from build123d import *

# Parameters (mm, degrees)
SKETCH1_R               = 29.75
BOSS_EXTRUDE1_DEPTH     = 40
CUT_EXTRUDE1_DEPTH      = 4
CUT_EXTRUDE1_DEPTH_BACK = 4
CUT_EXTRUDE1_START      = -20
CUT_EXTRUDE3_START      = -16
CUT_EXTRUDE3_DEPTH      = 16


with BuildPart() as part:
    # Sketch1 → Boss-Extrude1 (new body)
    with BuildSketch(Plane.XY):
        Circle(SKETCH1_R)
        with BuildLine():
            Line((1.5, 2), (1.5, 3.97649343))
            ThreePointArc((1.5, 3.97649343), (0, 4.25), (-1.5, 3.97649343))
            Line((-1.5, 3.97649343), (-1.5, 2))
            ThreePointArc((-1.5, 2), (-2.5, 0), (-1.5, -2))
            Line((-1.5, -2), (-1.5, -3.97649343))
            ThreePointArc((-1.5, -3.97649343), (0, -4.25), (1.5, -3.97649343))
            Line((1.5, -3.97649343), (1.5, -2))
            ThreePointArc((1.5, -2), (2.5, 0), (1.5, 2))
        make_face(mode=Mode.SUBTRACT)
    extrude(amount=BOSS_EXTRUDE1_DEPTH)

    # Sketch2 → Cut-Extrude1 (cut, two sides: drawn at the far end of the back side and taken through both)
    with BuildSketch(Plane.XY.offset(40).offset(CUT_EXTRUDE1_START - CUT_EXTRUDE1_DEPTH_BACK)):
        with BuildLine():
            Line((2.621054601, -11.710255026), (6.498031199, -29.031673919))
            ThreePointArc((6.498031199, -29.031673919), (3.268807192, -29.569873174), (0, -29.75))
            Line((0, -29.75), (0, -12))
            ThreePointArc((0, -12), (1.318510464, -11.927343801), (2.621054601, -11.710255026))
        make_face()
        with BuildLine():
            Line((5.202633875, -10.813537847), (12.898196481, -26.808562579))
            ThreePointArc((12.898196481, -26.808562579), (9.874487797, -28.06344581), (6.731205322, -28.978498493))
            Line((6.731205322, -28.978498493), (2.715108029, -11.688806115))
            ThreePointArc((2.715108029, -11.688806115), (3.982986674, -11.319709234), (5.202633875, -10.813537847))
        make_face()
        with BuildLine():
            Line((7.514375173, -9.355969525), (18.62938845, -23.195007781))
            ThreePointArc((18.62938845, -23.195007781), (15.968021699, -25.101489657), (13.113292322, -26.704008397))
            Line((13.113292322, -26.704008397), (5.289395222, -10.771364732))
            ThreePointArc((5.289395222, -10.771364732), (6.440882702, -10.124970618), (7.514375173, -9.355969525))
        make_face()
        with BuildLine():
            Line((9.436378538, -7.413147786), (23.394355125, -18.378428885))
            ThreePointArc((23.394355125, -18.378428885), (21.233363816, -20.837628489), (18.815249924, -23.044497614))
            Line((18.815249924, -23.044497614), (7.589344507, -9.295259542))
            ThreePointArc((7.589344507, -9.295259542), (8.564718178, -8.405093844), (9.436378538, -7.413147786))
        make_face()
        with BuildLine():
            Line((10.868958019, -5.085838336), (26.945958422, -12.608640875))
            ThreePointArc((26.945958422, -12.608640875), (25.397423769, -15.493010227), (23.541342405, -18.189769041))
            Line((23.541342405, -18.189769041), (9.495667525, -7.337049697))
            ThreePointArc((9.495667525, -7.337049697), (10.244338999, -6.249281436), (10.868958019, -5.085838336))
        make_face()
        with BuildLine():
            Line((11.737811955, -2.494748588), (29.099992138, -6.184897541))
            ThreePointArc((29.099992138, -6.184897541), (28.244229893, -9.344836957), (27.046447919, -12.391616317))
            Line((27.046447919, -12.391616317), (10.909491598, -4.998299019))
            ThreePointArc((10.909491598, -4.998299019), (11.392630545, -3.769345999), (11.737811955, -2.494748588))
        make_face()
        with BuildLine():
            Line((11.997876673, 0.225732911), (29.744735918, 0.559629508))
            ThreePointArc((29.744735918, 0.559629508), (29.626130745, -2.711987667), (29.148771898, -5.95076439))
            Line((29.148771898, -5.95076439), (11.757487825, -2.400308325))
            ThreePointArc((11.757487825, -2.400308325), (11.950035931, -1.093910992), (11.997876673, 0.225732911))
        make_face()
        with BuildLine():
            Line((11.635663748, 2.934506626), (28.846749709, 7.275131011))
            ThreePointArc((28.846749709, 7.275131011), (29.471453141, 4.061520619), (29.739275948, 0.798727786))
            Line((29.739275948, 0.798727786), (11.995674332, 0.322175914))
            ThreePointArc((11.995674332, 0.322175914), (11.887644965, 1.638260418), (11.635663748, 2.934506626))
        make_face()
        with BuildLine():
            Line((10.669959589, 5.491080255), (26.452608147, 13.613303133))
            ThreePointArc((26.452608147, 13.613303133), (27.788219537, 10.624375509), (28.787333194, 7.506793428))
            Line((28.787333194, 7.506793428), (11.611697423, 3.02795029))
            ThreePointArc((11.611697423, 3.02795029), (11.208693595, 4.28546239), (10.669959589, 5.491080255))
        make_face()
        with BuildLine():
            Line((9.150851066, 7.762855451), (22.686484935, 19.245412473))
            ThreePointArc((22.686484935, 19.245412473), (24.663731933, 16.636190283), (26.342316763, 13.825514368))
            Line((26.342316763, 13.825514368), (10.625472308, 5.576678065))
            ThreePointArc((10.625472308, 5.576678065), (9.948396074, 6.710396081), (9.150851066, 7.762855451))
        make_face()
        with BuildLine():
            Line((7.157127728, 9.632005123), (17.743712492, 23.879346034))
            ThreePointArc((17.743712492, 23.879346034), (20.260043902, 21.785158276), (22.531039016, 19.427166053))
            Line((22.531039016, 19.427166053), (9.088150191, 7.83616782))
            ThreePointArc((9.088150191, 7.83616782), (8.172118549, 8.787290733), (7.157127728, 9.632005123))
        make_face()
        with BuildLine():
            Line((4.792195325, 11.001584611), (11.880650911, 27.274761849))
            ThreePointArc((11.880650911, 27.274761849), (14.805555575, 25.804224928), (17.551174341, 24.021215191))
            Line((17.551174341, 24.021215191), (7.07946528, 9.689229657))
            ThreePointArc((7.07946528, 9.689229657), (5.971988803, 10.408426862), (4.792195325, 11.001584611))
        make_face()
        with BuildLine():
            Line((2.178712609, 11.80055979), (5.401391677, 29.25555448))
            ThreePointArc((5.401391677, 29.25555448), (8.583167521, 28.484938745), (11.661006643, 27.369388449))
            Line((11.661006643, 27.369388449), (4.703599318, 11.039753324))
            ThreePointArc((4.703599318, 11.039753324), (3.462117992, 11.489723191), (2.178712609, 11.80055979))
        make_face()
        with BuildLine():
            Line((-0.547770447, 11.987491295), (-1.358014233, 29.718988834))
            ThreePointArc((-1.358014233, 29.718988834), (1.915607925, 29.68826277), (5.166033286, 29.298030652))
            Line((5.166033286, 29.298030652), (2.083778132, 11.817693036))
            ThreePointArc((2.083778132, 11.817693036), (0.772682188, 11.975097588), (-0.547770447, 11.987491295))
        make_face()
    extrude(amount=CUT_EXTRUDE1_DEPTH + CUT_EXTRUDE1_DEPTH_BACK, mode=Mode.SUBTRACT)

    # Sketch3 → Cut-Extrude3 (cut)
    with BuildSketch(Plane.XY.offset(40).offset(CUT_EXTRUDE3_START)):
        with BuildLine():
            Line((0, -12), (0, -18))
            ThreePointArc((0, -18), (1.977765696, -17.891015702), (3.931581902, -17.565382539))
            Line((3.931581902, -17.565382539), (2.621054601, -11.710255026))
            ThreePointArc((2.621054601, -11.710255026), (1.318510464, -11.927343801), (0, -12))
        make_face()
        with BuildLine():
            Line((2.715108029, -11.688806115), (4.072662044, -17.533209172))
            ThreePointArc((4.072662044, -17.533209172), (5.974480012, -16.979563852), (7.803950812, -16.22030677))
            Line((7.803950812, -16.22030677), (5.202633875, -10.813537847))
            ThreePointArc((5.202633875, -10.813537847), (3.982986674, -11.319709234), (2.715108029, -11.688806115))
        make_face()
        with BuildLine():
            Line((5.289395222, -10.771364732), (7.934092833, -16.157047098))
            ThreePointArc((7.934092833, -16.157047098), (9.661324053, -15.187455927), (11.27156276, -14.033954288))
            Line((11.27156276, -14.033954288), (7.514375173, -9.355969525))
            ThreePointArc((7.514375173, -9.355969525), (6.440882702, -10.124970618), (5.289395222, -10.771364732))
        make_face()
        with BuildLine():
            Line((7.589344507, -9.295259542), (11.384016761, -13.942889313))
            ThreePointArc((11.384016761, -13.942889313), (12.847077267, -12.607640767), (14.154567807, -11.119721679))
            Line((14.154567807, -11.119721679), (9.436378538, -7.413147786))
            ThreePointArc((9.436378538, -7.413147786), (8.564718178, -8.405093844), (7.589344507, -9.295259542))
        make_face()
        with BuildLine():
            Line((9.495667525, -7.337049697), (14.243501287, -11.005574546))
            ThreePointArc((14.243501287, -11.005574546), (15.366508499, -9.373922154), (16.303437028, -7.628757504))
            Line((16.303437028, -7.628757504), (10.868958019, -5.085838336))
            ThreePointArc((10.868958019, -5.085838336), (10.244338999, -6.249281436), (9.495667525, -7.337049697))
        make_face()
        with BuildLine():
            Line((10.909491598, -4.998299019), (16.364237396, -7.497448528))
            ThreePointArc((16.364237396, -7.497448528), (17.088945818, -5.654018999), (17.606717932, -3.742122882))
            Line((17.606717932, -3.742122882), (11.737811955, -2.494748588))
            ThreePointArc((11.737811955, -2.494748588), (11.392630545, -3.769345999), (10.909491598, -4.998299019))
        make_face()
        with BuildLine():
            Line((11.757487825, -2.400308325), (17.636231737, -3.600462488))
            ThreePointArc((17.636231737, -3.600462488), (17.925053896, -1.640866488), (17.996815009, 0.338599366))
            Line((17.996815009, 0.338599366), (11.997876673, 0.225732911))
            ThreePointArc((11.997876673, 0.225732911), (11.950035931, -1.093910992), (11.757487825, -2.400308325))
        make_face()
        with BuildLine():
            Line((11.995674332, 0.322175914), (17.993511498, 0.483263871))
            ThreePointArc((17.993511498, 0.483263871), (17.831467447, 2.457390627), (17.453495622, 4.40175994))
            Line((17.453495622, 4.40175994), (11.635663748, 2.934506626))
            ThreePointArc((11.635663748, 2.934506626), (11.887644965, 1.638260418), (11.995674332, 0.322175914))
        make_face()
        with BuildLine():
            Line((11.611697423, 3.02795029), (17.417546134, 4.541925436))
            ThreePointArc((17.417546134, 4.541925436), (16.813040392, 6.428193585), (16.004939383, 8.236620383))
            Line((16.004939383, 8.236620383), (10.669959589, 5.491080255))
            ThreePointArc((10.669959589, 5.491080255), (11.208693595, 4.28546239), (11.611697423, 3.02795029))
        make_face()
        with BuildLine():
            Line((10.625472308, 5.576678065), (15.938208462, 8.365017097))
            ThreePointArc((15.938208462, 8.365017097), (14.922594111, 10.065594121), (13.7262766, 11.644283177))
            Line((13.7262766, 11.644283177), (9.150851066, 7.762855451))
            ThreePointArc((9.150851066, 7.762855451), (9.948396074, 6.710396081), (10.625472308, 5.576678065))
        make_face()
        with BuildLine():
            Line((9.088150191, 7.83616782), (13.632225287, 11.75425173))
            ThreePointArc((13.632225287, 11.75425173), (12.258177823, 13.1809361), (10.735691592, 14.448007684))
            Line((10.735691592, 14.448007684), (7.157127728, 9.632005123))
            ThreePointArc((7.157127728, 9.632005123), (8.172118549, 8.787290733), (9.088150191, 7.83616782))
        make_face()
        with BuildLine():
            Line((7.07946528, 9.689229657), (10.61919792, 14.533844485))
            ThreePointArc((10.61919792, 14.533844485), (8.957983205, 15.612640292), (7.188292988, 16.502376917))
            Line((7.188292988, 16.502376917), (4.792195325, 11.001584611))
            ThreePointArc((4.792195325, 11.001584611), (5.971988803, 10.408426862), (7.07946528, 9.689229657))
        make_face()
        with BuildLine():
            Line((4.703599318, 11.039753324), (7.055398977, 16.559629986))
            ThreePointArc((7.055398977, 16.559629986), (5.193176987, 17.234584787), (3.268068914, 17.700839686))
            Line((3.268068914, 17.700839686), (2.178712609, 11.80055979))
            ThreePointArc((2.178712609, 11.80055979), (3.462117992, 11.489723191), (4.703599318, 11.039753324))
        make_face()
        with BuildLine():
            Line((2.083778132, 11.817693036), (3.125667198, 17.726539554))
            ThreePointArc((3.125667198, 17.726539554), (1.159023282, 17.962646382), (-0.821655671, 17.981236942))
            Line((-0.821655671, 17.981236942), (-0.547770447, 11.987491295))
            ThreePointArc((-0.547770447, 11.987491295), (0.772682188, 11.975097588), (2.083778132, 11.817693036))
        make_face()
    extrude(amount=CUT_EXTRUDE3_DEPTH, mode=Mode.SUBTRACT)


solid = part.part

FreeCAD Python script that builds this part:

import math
import FreeCAD as App
import Part
import Sketcher
from FreeCAD import Vector
Q = App.Units.Quantity

doc = App.newDocument("Part")
body = doc.addObject("PartDesign::Body", "Body")

# Sketch on XY plane
sketch1 = body.newObject("Sketcher::SketchObject", "Sketch")
sketch1.AttachmentSupport = (doc.getObject("XY_Plane"), [""])
sketch1.MapMode = "FlatFace"
sketch1.addGeometry([
    Part.Circle(Vector(0, 0, 0), Vector(0, 0, 1), 29.75),  # 0
    Part.LineSegment(Vector(1.5, 3.976493, 0), Vector(1.5, 2, 0)),  # 1
    Part.ArcOfCircle(Part.Circle(Vector(0, 0, 0), Vector(0, 0, 1), 2.5), math.radians(-53.130102), math.radians(53.130102)),  # 2
    Part.LineSegment(Vector(1.5, -2, 0), Vector(1.5, -3.976493, 0)),  # 3
    Part.ArcOfCircle(Part.Circle(Vector(0, 0, 0), Vector(0, 0, 1), 4.25), math.radians(-110.667317), math.radians(-69.332683)),  # 4
    Part.LineSegment(Vector(-1.5, -3.976493, 0), Vector(-1.5, -2, 0)),  # 5
    Part.ArcOfCircle(Part.Circle(Vector(0, 0, 0), Vector(0, 0, 1), 2.5), math.radians(126.869898), math.radians(233.130102)),  # 6
    Part.LineSegment(Vector(-1.5, 2, 0), Vector(-1.5, 3.976493, 0)),  # 7
    Part.ArcOfCircle(Part.Circle(Vector(0, 0, 0), Vector(0, 0, 1), 4.25), math.radians(69.332683), math.radians(110.667317)),  # 8
], False)
sketch1.addConstraint([
    Sketcher.Constraint("Coincident", 1, 2, 2, 2),
    Sketcher.Constraint("Coincident", 2, 1, 3, 1),
    Sketcher.Constraint("Coincident", 3, 2, 4, 2),
    Sketcher.Constraint("Coincident", 4, 1, 5, 1),
    Sketcher.Constraint("Coincident", 5, 2, 6, 2),
    Sketcher.Constraint("Coincident", 6, 1, 7, 1),
    Sketcher.Constraint("Coincident", 7, 2, 8, 2),
    Sketcher.Constraint("Coincident", 8, 1, 1, 1),
    Sketcher.Constraint("Vertical", 1),
    Sketcher.Constraint("Vertical", 3),
    Sketcher.Constraint("Vertical", 5),
    Sketcher.Constraint("Vertical", 7),
    Sketcher.Constraint("Coincident", 0, 3, -1, 1),
    Sketcher.Constraint("Coincident", 2, 3, -1, 1),
    Sketcher.Constraint("Coincident", 4, 3, -1, 1),
    Sketcher.Constraint("Coincident", 6, 3, -1, 1),
    Sketcher.Constraint("Coincident", 8, 3, -1, 1),
    Sketcher.Constraint("Equal", 2, 6),
    Sketcher.Constraint("Equal", 4, 8),
    Sketcher.Constraint("Horizontal", 3, 2, 4, 1),
    Sketcher.Constraint("Horizontal", 1, 2, 6, 1),
    Sketcher.Constraint("Vertical", 1, 2, 2, 1),
    Sketcher.Constraint("Diameter", 0, 59.5),
    Sketcher.Constraint("Radius", 2, 2.5),
    Sketcher.Constraint("Radius", 4, 4.25),
    Sketcher.Constraint("DistanceY", -1, 1, 1, 2, 2.0),
])
pad1 = body.newObject("PartDesign::Pad", "Pad")
pad1.Profile = sketch1
pad1.Length = 40

# Sketch on XY plane
sketch2 = body.newObject("Sketcher::SketchObject", "Sketch001")
sketch2.AttachmentSupport = (doc.getObject("XY_Plane"), [""])
sketch2.MapMode = "FlatFace"
sketch2.AttachmentOffset = App.Placement(Vector(0, 0, 20), App.Rotation())
sketch2.addGeometry([
    Part.LineSegment(Vector(6.498031, -29.031674, 0), Vector(2.621055, -11.710255, 0)),  # 0
    Part.ArcOfCircle(Part.Circle(Vector(0, 0, 0), Vector(0, 0, 1), 12), math.radians(-90), math.radians(-77.38368)),  # 1
    Part.LineSegment(Vector(0, -12, 0), Vector(0, -29.75, 0)),  # 2
    Part.ArcOfCircle(Part.Circle(Vector(0, 0, 0), Vector(0, 0, 1), 29.75), math.radians(-90), math.radians(-77.38368)),  # 3
    Part.LineSegment(Vector(12.898196, -26.808563, 0), Vector(5.202634, -10.813538, 0)),  # 4
    Part.ArcOfCircle(Part.Circle(Vector(0, 0, 0), Vector(0, 0, 1), 12), math.radians(-76.923077), math.radians(-64.306757)),  # 5
    Part.LineSegment(Vector(2.715108, -11.688806, 0), Vector(6.731205, -28.978498, 0)),  # 6
    Part.ArcOfCircle(Part.Circle(Vector(0, 0, 0), Vector(0, 0, 1), 29.75), math.radians(-76.923077), math.radians(-64.306757)),  # 7
    Part.LineSegment(Vector(18.629388, -23.195008, 0), Vector(7.514375, -9.35597, 0)),  # 8
    Part.ArcOfCircle(Part.Circle(Vector(0, 0, 0), Vector(0, 0, 1), 12), math.radians(-63.846154), math.radians(-51.229833)),  # 9
    Part.LineSegment(Vector(5.289395, -10.771365, 0), Vector(13.113292, -26.704008, 0)),  # 10
    Part.ArcOfCircle(Part.Circle(Vector(0, 0, 0), Vector(0, 0, 1), 29.75), math.radians(-63.846154), math.radians(-51.229833)),  # 11
    Part.LineSegment(Vector(23.394355, -18.378429, 0), Vector(9.436379, -7.413148, 0)),  # 12
    Part.ArcOfCircle(Part.Circle(Vector(0, 0, 0), Vector(0, 0, 1), 12), math.radians(-50.769231), math.radians(-38.15291)),  # 13
    Part.LineSegment(Vector(7.589345, -9.29526, 0), Vector(18.81525, -23.044498, 0)),  # 14
    Part.ArcOfCircle(Part.Circle(Vector(0, 0, 0), Vector(0, 0, 1), 29.75), math.radians(-50.769231), math.radians(-38.15291)),  # 15
    Part.LineSegment(Vector(26.945958, -12.608641, 0), Vector(10.868958, -5.085838, 0)),  # 16
    Part.ArcOfCircle(Part.Circle(Vector(0, 0, 0), Vector(0, 0, 1), 12), math.radians(-37.692308), math.radians(-25.075987)),  # 17
    Part.LineSegment(Vector(9.495668, -7.33705, 0), Vector(23.541342, -18.189769, 0)),  # 18
    Part.ArcOfCircle(Part.Circle(Vector(0, 0, 0), Vector(0, 0, 1), 29.75), math.radians(-37.692308), math.radians(-25.075987)),  # 19
    Part.LineSegment(Vector(29.099992, -6.184898, 0), Vector(11.737812, -2.494749, 0)),  # 20
    Part.ArcOfCircle(Part.Circle(Vector(0, 0, 0), Vector(0, 0, 1), 12), math.radians(-24.615385), math.radians(-11.999064)),  # 21
    Part.LineSegment(Vector(10.909492, -4.998299, 0), Vector(27.046448, -12.391616, 0)),  # 22
    Part.ArcOfCircle(Part.Circle(Vector(0, 0, 0), Vector(0, 0, 1), 29.75), math.radians(-24.615385), math.radians(-11.999064)),  # 23
    Part.LineSegment(Vector(29.744736, 0.55963, 0), Vector(11.997877, 0.225733, 0)),  # 24
    Part.ArcOfCircle(Part.Circle(Vector(0, 0, 0), Vector(0, 0, 1), 12), math.radians(-11.538462), math.radians(1.077859)),  # 25
    Part.LineSegment(Vector(11.757488, -2.400308, 0), Vector(29.148772, -5.950764, 0)),  # 26
    Part.ArcOfCircle(Part.Circle(Vector(0, 0, 0), Vector(0, 0, 1), 29.75), math.radians(-11.538462), math.radians(1.077859)),  # 27
    Part.LineSegment(Vector(28.84675, 7.275131, 0), Vector(11.635664, 2.934507, 0)),  # 28
    Part.ArcOfCircle(Part.Circle(Vector(0, 0, 0), Vector(0, 0, 1), 12), math.radians(1.538461), math.radians(14.154782)),  # 29
    Part.LineSegment(Vector(11.995674, 0.322176, 0), Vector(29.739276, 0.798728, 0)),  # 30
    Part.ArcOfCircle(Part.Circle(Vector(0, 0, 0), Vector(0, 0, 1), 29.75), math.radians(1.538462), math.radians(14.154782)),  # 31
    Part.LineSegment(Vector(26.452608, 13.613303, 0), Vector(10.66996, 5.49108, 0)),  # 32
    Part.ArcOfCircle(Part.Circle(Vector(0, 0, 0), Vector(0, 0, 1), 12), math.radians(14.615385), math.radians(27.231705)),  # 33
    Part.LineSegment(Vector(11.611697, 3.02795, 0), Vector(28.787333, 7.506793, 0)),  # 34
    Part.ArcOfCircle(Part.Circle(Vector(0, 0, 0), Vector(0, 0, 1), 29.75), math.radians(14.615385), math.radians(27.231705)),  # 35
    Part.LineSegment(Vector(22.686485, 19.245412, 0), Vector(9.150851, 7.762855, 0)),  # 36
    Part.ArcOfCircle(Part.Circle(Vector(0, 0, 0), Vector(0, 0, 1), 12), math.radians(27.692308), math.radians(40.308628)),  # 37
    Part.LineSegment(Vector(10.625472, 5.576678, 0), Vector(26.342317, 13.825514, 0)),  # 38
    Part.ArcOfCircle(Part.Circle(Vector(0, 0, 0), Vector(0, 0, 1), 29.75), math.radians(27.692308), math.radians(40.308628)),  # 39
    Part.LineSegment(Vector(17.743712, 23.879346, 0), Vector(7.157128, 9.632005, 0)),  # 40
    Part.ArcOfCircle(Part.Circle(Vector(0, 0, 0), Vector(0, 0, 1), 12), math.radians(40.769231), math.radians(53.385551)),  # 41
    Part.LineSegment(Vector(9.08815, 7.836168, 0), Vector(22.531039, 19.427166, 0)),  # 42
    Part.ArcOfCircle(Part.Circle(Vector(0, 0, 0), Vector(0, 0, 1), 29.75), math.radians(40.769231), math.radians(53.385551)),  # 43
    Part.LineSegment(Vector(11.880651, 27.274762, 0), Vector(4.792195, 11.001585, 0)),  # 44
    Part.ArcOfCircle(Part.Circle(Vector(0, 0, 0), Vector(0, 0, 1), 12), math.radians(53.846154), math.radians(66.462474)),  # 45
    Part.LineSegment(Vector(7.079465, 9.68923, 0), Vector(17.551174, 24.021215, 0)),  # 46
    Part.ArcOfCircle(Part.Circle(Vector(0, 0, 0), Vector(0, 0, 1), 29.75), math.radians(53.846154), math.radians(66.462474)),  # 47
    Part.LineSegment(Vector(5.401392, 29.255554, 0), Vector(2.178713, 11.80056, 0)),  # 48
    Part.ArcOfCircle(Part.Circle(Vector(0, 0, 0), Vector(0, 0, 1), 12), math.radians(66.923077), math.radians(79.539397)),  # 49
    Part.LineSegment(Vector(4.703599, 11.039753, 0), Vector(11.661007, 27.369388, 0)),  # 50
    Part.ArcOfCircle(Part.Circle(Vector(0, 0, 0), Vector(0, 0, 1), 29.75), math.radians(66.923077), math.radians(79.539397)),  # 51
    Part.LineSegment(Vector(-1.358014, 29.718989, 0), Vector(-0.54777, 11.987491, 0)),  # 52
    Part.ArcOfCircle(Part.Circle(Vector(0, 0, 0), Vector(0, 0, 1), 12), math.radians(80), math.radians(92.61632)),  # 53
    Part.LineSegment(Vector(2.083778, 11.817693, 0), Vector(5.166033, 29.298031, 0)),  # 54
    Part.ArcOfCircle(Part.Circle(Vector(0, 0, 0), Vector(0, 0, 1), 29.75), math.radians(80), math.radians(92.61632)),  # 55
], False)
sketch2.addConstraint([
    Sketcher.Constraint("Coincident", 0, 2, 1, 2),
    Sketcher.Constraint("Coincident", 1, 1, 2, 1),
    Sketcher.Constraint("Coincident", 2, 2, 3, 1),
    Sketcher.Constraint("Coincident", 3, 2, 0, 1),
    Sketcher.Constraint("Coincident", 4, 2, 5, 2),
    Sketcher.Constraint("Coincident", 5, 1, 6, 1),
    Sketcher.Constraint("Coincident", 6, 2, 7, 1),
    Sketcher.Constraint("Coincident", 7, 2, 4, 1),
    Sketcher.Constraint("Coincident", 8, 2, 9, 2),
    Sketcher.Constraint("Coincident", 9, 1, 10, 1),
    Sketcher.Constraint("Coincident", 10, 2, 11, 1),
    Sketcher.Constraint("Coincident", 11, 2, 8, 1),
    Sketcher.Constraint("Coincident", 12, 2, 13, 2),
    Sketcher.Constraint("Coincident", 13, 1, 14, 1),
    Sketcher.Constraint("Coincident", 14, 2, 15, 1),
    Sketcher.Constraint("Coincident", 15, 2, 12, 1),
    Sketcher.Constraint("Coincident", 16, 2, 17, 2),
    Sketcher.Constraint("Coincident", 17, 1, 18, 1),
    Sketcher.Constraint("Coincident", 18, 2, 19, 1),
    Sketcher.Constraint("Coincident", 19, 2, 16, 1),
    Sketcher.Constraint("Coincident", 20, 2, 21, 2),
    Sketcher.Constraint("Coincident", 21, 1, 22, 1),
    Sketcher.Constraint("Coincident", 22, 2, 23, 1),
    Sketcher.Constraint("Coincident", 23, 2, 20, 1),
    Sketcher.Constraint("Coincident", 24, 2, 25, 2),
    Sketcher.Constraint("Coincident", 25, 1, 26, 1),
    Sketcher.Constraint("Coincident", 26, 2, 27, 1),
    Sketcher.Constraint("Coincident", 27, 2, 24, 1),
    Sketcher.Constraint("Coincident", 28, 2, 29, 2),
    Sketcher.Constraint("Coincident", 29, 1, 30, 1),
    Sketcher.Constraint("Coincident", 30, 2, 31, 1),
    Sketcher.Constraint("Coincident", 31, 2, 28, 1),
    Sketcher.Constraint("Coincident", 32, 2, 33, 2),
    Sketcher.Constraint("Coincident", 33, 1, 34, 1),
    Sketcher.Constraint("Coincident", 34, 2, 35, 1),
    Sketcher.Constraint("Coincident", 35, 2, 32, 1),
    Sketcher.Constraint("Coincident", 36, 2, 37, 2),
    Sketcher.Constraint("Coincident", 37, 1, 38, 1),
    Sketcher.Constraint("Coincident", 38, 2, 39, 1),
    Sketcher.Constraint("Coincident", 39, 2, 36, 1),
    Sketcher.Constraint("Coincident", 40, 2, 41, 2),
    Sketcher.Constraint("Coincident", 41, 1, 42, 1),
    Sketcher.Constraint("Coincident", 42, 2, 43, 1),
    Sketcher.Constraint("Coincident", 43, 2, 40, 1),
    Sketcher.Constraint("Coincident", 44, 2, 45, 2),
    Sketcher.Constraint("Coincident", 45, 1, 46, 1),
    Sketcher.Constraint("Coincident", 46, 2, 47, 1),
    Sketcher.Constraint("Coincident", 47, 2, 44, 1),
    Sketcher.Constraint("Coincident", 48, 2, 49, 2),
    Sketcher.Constraint("Coincident", 49, 1, 50, 1),
    Sketcher.Constraint("Coincident", 50, 2, 51, 1),
    Sketcher.Constraint("Coincident", 51, 2, 48, 1),
    Sketcher.Constraint("Coincident", 52, 2, 53, 2),
    Sketcher.Constraint("Coincident", 53, 1, 54, 1),
    Sketcher.Constraint("Coincident", 54, 2, 55, 1),
    Sketcher.Constraint("Coincident", 55, 2, 52, 1),
    Sketcher.Constraint("Vertical", 2),
    Sketcher.Constraint("Coincident", 1, 3, -1, 1),
    Sketcher.Constraint("Coincident", 3, 3, -1, 1),
    Sketcher.Constraint("Coincident", 5, 3, -1, 1),
    Sketcher.Constraint("Coincident", 7, 3, -1, 1),
    Sketcher.Constraint("Coincident", 9, 3, -1, 1),
    Sketcher.Constraint("Coincident", 11, 3, -1, 1),
    Sketcher.Constraint("Coincident", 13, 3, -1, 1),
    Sketcher.Constraint("Coincident", 15, 3, -1, 1),
    Sketcher.Constraint("Coincident", 17, 3, -1, 1),
    Sketcher.Constraint("Coincident", 19, 3, -1, 1),
    Sketcher.Constraint("Coincident", 21, 3, -1, 1),
    Sketcher.Constraint("Coincident", 23, 3, -1, 1),
    Sketcher.Constraint("Coincident", 25, 3, -1, 1),
    Sketcher.Constraint("Coincident", 27, 3, -1, 1),
    Sketcher.Constraint("Coincident", 29, 3, -1, 1),
    Sketcher.Constraint("Coincident", 31, 3, -1, 1),
    Sketcher.Constraint("Coincident", 33, 3, -1, 1),
    Sketcher.Constraint("Coincident", 35, 3, -1, 1),
    Sketcher.Constraint("Coincident", 37, 3, -1, 1),
    Sketcher.Constraint("Coincident", 39, 3, -1, 1),
    Sketcher.Constraint("Coincident", 41, 3, -1, 1),
    Sketcher.Constraint("Coincident", 43, 3, -1, 1),
    Sketcher.Constraint("Coincident", 45, 3, -1, 1),
    Sketcher.Constraint("Coincident", 47, 3, -1, 1),
    Sketcher.Constraint("Coincident", 49, 3, -1, 1),
    Sketcher.Constraint("Coincident", 51, 3, -1, 1),
    Sketcher.Constraint("Coincident", 53, 3, -1, 1),
    Sketcher.Constraint("Coincident", 55, 3, -1, 1),
    Sketcher.Constraint("Equal", 1, 5),
    Sketcher.Constraint("Equal", 3, 7),
    Sketcher.Constraint("Equal", 5, 9),
    Sketcher.Constraint("Equal", 7, 11),
    Sketcher.Constraint("Equal", 9, 13),
    Sketcher.Constraint("Equal", 11, 15),
    Sketcher.Constraint("Equal", 13, 17),
    Sketcher.Constraint("Equal", 15, 19),
    Sketcher.Constraint("Equal", 17, 21),
    Sketcher.Constraint("Equal", 19, 23),
    Sketcher.Constraint("Equal", 21, 25),
    Sketcher.Constraint("Equal", 23, 27),
    Sketcher.Constraint("Equal", 25, 29),
    Sketcher.Constraint("Equal", 27, 31),
    Sketcher.Constraint("Equal", 29, 33),
    Sketcher.Constraint("Equal", 31, 35),
    Sketcher.Constraint("Equal", 33, 37),
    Sketcher.Constraint("Equal", 35, 39),
    Sketcher.Constraint("Equal", 37, 41),
    Sketcher.Constraint("Equal", 39, 43),
    Sketcher.Constraint("Equal", 41, 45),
    Sketcher.Constraint("Equal", 43, 47),
    Sketcher.Constraint("Equal", 45, 49),
    Sketcher.Constraint("Equal", 47, 51),
    Sketcher.Constraint("Equal", 49, 53),
    Sketcher.Constraint("Equal", 51, 55),
    Sketcher.Constraint("PointOnObject", 1, 1, -2),
    Sketcher.Constraint("Radius", 1, 12.0),
    Sketcher.Constraint("Angle", 54, Q("80 deg")),
    Sketcher.Constraint("Radius", 3, 29.75),
    Sketcher.Constraint("DistanceY", 6, 2, -1, 1, 28.978498),
    Sketcher.Constraint("DistanceY", 21, 1, -1, 1, 4.998299),
    Sketcher.Constraint("DistanceX", -1, 1, 49, 1, 4.703599),
    Sketcher.Constraint("DistanceX", -1, 1, 3, 2, 6.498031),
    Sketcher.Constraint("DistanceX", -1, 1, 5, 1, 2.715108),
    Sketcher.Constraint("DistanceY", 8, 2, -1, 1, 9.35597),
    Sketcher.Constraint("DistanceY", 10, 2, -1, 1, 26.704008),
    Sketcher.Constraint("DistanceX", -1, 1, 11, 2, 18.629388),
    Sketcher.Constraint("DistanceX", -1, 1, 12, 2, 9.436379),
    Sketcher.Constraint("DistanceY", 13, 1, -1, 1, 9.29526),
    Sketcher.Constraint("DistanceX", -1, 1, 14, 2, 18.81525),
    Sketcher.Constraint("DistanceY", 15, 2, -1, 1, 18.378429),
    Sketcher.Constraint("DistanceX", -1, 1, 16, 2, 10.868958),
    Sketcher.Constraint("DistanceY", 17, 1, -1, 1, 7.33705),
    Sketcher.Constraint("DistanceY", 18, 2, -1, 1, 18.189769),
    Sketcher.Constraint("DistanceX", -1, 1, 19, 2, 26.945958),
    Sketcher.Constraint("DistanceX", -1, 1, 20, 2, 11.737812),
    Sketcher.Constraint("DistanceY", 25, 1, -1, 1, 2.400308),
    Sketcher.Constraint("DistanceX", -1, 1, 26, 2, 29.148772),
    Sketcher.Constraint("DistanceY", -1, 1, 27, 2, 0.55963),
    Sketcher.Constraint("DistanceX", -1, 1, 31, 2, 28.84675),
    Sketcher.Constraint("DistanceX", -1, 1, 32, 2, 10.66996),
    Sketcher.Constraint("DistanceY", -1, 1, 33, 1, 3.02795),
    Sketcher.Constraint("DistanceX", -1, 1, 35, 2, 26.452608),
    Sketcher.Constraint("DistanceX", -1, 1, 36, 2, 9.150851),
    Sketcher.Constraint("DistanceY", -1, 1, 37, 1, 5.576678),
    Sketcher.Constraint("DistanceX", -1, 1, 41, 1, 9.08815),
    Sketcher.Constraint("DistanceX", -1, 1, 42, 2, 22.531039),
    Sketcher.Constraint("DistanceY", -1, 1, 45, 1, 9.68923),
    Sketcher.Constraint("DistanceX", -1, 1, 47, 2, 11.880651),
    Sketcher.Constraint("DistanceY", -1, 1, 48, 2, 11.80056),
    Sketcher.Constraint("DistanceY", -1, 1, 50, 2, 27.369388),
    Sketcher.Constraint("DistanceX", -1, 1, 51, 2, 5.401392),
    Sketcher.Constraint("DistanceX", 52, 2, -1, 1, 0.54777),
    Sketcher.Constraint("DistanceX", -1, 1, 53, 1, 2.083778),
    Sketcher.Constraint("DistanceY", -1, 1, 55, 2, 29.718989),
    Sketcher.Constraint("DistanceX", -1, 1, 0, 2, 2.621055),
    Sketcher.Constraint("DistanceX", -1, 1, 4, 2, 5.202634),
    Sketcher.Constraint("DistanceX", -1, 1, 7, 2, 12.898196),
    Sketcher.Constraint("DistanceX", -1, 1, 9, 1, 5.289395),
    Sketcher.Constraint("DistanceX", -1, 1, 22, 2, 27.046448),
    Sketcher.Constraint("DistanceX", -1, 1, 23, 2, 29.099992),
    Sketcher.Constraint("DistanceX", -1, 1, 24, 2, 11.997877),
    Sketcher.Constraint("DistanceX", -1, 1, 28, 2, 11.635664),
    Sketcher.Constraint("DistanceX", -1, 1, 29, 1, 11.995674),
    Sketcher.Constraint("DistanceX", -1, 1, 30, 2, 29.739276),
    Sketcher.Constraint("DistanceX", -1, 1, 34, 2, 28.787333),
    Sketcher.Constraint("DistanceX", -1, 1, 38, 2, 26.342317),
    Sketcher.Constraint("DistanceX", -1, 1, 39, 2, 22.686485),
    Sketcher.Constraint("DistanceX", -1, 1, 40, 2, 7.157128),
    Sketcher.Constraint("DistanceX", -1, 1, 43, 2, 17.743712),
    Sketcher.Constraint("DistanceX", -1, 1, 44, 2, 4.792195),
    Sketcher.Constraint("DistanceX", -1, 1, 46, 2, 17.551174),
])
pocket1 = body.newObject("PartDesign::Pocket", "Pocket")
pocket1.Profile = sketch2
pocket1.Type = "TwoLengths"
pocket1.Length = 4
pocket1.Length2 = 4
pocket1.Reversed = True

# Sketch on XY plane
sketch3 = body.newObject("Sketcher::SketchObject", "Sketch002")
sketch3.AttachmentSupport = (doc.getObject("XY_Plane"), [""])
sketch3.MapMode = "FlatFace"
sketch3.AttachmentOffset = App.Placement(Vector(0, 0, 24), App.Rotation())
sketch3.addGeometry([
    Part.LineSegment(Vector(0, -12, 0), Vector(0, -18, 0)),  # 0
    Part.ArcOfCircle(Part.Circle(Vector(0, 0, 0), Vector(0, 0, 1), 18), math.radians(-90), math.radians(-77.38368)),  # 1
    Part.LineSegment(Vector(3.931582, -17.565383, 0), Vector(2.621055, -11.710255, 0)),  # 2
    Part.ArcOfCircle(Part.Circle(Vector(0, 0, 0), Vector(0, 0, 1), 12), math.radians(-90), math.radians(-77.38368)),  # 3
    Part.LineSegment(Vector(2.715108, -11.688806, 0), Vector(4.072662, -17.533209, 0)),  # 4
    Part.ArcOfCircle(Part.Circle(Vector(0, 0, 0), Vector(0, 0, 1), 18), math.radians(-76.923077), math.radians(-64.306757)),  # 5
    Part.LineSegment(Vector(7.803951, -16.220307, 0), Vector(5.202634, -10.813538, 0)),  # 6
    Part.ArcOfCircle(Part.Circle(Vector(0, 0, 0), Vector(0, 0, 1), 12), math.radians(-76.923077), math.radians(-64.306757)),  # 7
    Part.LineSegment(Vector(5.289395, -10.771365, 0), Vector(7.934093, -16.157047, 0)),  # 8
    Part.ArcOfCircle(Part.Circle(Vector(0, 0, 0), Vector(0, 0, 1), 18), math.radians(-63.846154), math.radians(-51.229834)),  # 9
    Part.LineSegment(Vector(11.271563, -14.033954, 0), Vector(7.514375, -9.35597, 0)),  # 10
    Part.ArcOfCircle(Part.Circle(Vector(0, 0, 0), Vector(0, 0, 1), 12), math.radians(-63.846154), math.radians(-51.229833)),  # 11
    Part.LineSegment(Vector(7.589345, -9.29526, 0), Vector(11.384017, -13.942889, 0)),  # 12
    Part.ArcOfCircle(Part.Circle(Vector(0, 0, 0), Vector(0, 0, 1), 18), math.radians(-50.769231), math.radians(-38.15291)),  # 13
    Part.LineSegment(Vector(14.154568, -11.119722, 0), Vector(9.436379, -7.413148, 0)),  # 14
    Part.ArcOfCircle(Part.Circle(Vector(0, 0, 0), Vector(0, 0, 1), 12), math.radians(-50.769231), math.radians(-38.15291)),  # 15
    Part.LineSegment(Vector(9.495668, -7.33705, 0), Vector(14.243501, -11.005575, 0)),  # 16
    Part.ArcOfCircle(Part.Circle(Vector(0, 0, 0), Vector(0, 0, 1), 18), math.radians(-37.692308), math.radians(-25.075987)),  # 17
    Part.LineSegment(Vector(16.303437, -7.628758, 0), Vector(10.868958, -5.085838, 0)),  # 18
    Part.ArcOfCircle(Part.Circle(Vector(0, 0, 0), Vector(0, 0, 1), 12), math.radians(-37.692308), math.radians(-25.075987)),  # 19
    Part.LineSegment(Vector(10.909492, -4.998299, 0), Vector(16.364237, -7.497449, 0)),  # 20
    Part.ArcOfCircle(Part.Circle(Vector(0, 0, 0), Vector(0, 0, 1), 18), math.radians(-24.615385), math.radians(-11.999064)),  # 21
    Part.LineSegment(Vector(17.606718, -3.742123, 0), Vector(11.737812, -2.494749, 0)),  # 22
    Part.ArcOfCircle(Part.Circle(Vector(0, 0, 0), Vector(0, 0, 1), 12), math.radians(-24.615385), math.radians(-11.999064)),  # 23
    Part.LineSegment(Vector(11.757488, -2.400308, 0), Vector(17.636232, -3.600462, 0)),  # 24
    Part.ArcOfCircle(Part.Circle(Vector(0, 0, 0), Vector(0, 0, 1), 18), math.radians(-11.538462), math.radians(1.077859)),  # 25
    Part.LineSegment(Vector(17.996815, 0.338599, 0), Vector(11.997877, 0.225733, 0)),  # 26
    Part.ArcOfCircle(Part.Circle(Vector(0, 0, 0), Vector(0, 0, 1), 12), math.radians(-11.538462), math.radians(1.077859)),  # 27
    Part.LineSegment(Vector(11.995674, 0.322176, 0), Vector(17.993511, 0.483264, 0)),  # 28
    Part.ArcOfCircle(Part.Circle(Vector(0, 0, 0), Vector(0, 0, 1), 18), math.radians(1.538462), math.radians(14.154782)),  # 29
    Part.LineSegment(Vector(17.453496, 4.40176, 0), Vector(11.635664, 2.934507, 0)),  # 30
    Part.ArcOfCircle(Part.Circle(Vector(0, 0, 0), Vector(0, 0, 1), 12), math.radians(1.538461), math.radians(14.154782)),  # 31
    Part.LineSegment(Vector(11.611697, 3.02795, 0), Vector(17.417546, 4.541925, 0)),  # 32
    Part.ArcOfCircle(Part.Circle(Vector(0, 0, 0), Vector(0, 0, 1), 18), math.radians(14.615385), math.radians(27.231705)),  # 33
    Part.LineSegment(Vector(16.004939, 8.23662, 0), Vector(10.66996, 5.49108, 0)),  # 34
    Part.ArcOfCircle(Part.Circle(Vector(0, 0, 0), Vector(0, 0, 1), 12), math.radians(14.615385), math.radians(27.231705)),  # 35
    Part.LineSegment(Vector(10.625472, 5.576678, 0), Vector(15.938208, 8.365017, 0)),  # 36
    Part.ArcOfCircle(Part.Circle(Vector(0, 0, 0), Vector(0, 0, 1), 18), math.radians(27.692308), math.radians(40.308628)),  # 37
    Part.LineSegment(Vector(13.726277, 11.644283, 0), Vector(9.150851, 7.762855, 0)),  # 38
    Part.ArcOfCircle(Part.Circle(Vector(0, 0, 0), Vector(0, 0, 1), 12), math.radians(27.692308), math.radians(40.308628)),  # 39
    Part.LineSegment(Vector(9.08815, 7.836168, 0), Vector(13.632225, 11.754252, 0)),  # 40
    Part.ArcOfCircle(Part.Circle(Vector(0, 0, 0), Vector(0, 0, 1), 18), math.radians(40.769231), math.radians(53.385551)),  # 41
    Part.LineSegment(Vector(10.735692, 14.448008, 0), Vector(7.157128, 9.632005, 0)),  # 42
    Part.ArcOfCircle(Part.Circle(Vector(0, 0, 0), Vector(0, 0, 1), 12), math.radians(40.769231), math.radians(53.385551)),  # 43
    Part.LineSegment(Vector(7.079465, 9.68923, 0), Vector(10.619198, 14.533844, 0)),  # 44
    Part.ArcOfCircle(Part.Circle(Vector(0, 0, 0), Vector(0, 0, 1), 18), math.radians(53.846154), math.radians(66.462474)),  # 45
    Part.LineSegment(Vector(7.188293, 16.502377, 0), Vector(4.792195, 11.001585, 0)),  # 46
    Part.ArcOfCircle(Part.Circle(Vector(0, 0, 0), Vector(0, 0, 1), 12), math.radians(53.846154), math.radians(66.462474)),  # 47
    Part.LineSegment(Vector(4.703599, 11.039753, 0), Vector(7.055399, 16.55963, 0)),  # 48
    Part.ArcOfCircle(Part.Circle(Vector(0, 0, 0), Vector(0, 0, 1), 18), math.radians(66.923077), math.radians(79.539397)),  # 49
    Part.LineSegment(Vector(3.268069, 17.70084, 0), Vector(2.178713, 11.80056, 0)),  # 50
    Part.ArcOfCircle(Part.Circle(Vector(0, 0, 0), Vector(0, 0, 1), 12), math.radians(66.923077), math.radians(79.539397)),  # 51
    Part.LineSegment(Vector(2.083778, 11.817693, 0), Vector(3.125667, 17.72654, 0)),  # 52
    Part.ArcOfCircle(Part.Circle(Vector(0, 0, 0), Vector(0, 0, 1), 18), math.radians(80), math.radians(92.61632)),  # 53
    Part.LineSegment(Vector(-0.821656, 17.981237, 0), Vector(-0.54777, 11.987491, 0)),  # 54
    Part.ArcOfCircle(Part.Circle(Vector(0, 0, 0), Vector(0, 0, 1), 12), math.radians(80), math.radians(92.61632)),  # 55
], False)
sketch3.addConstraint([
    Sketcher.Constraint("Coincident", 0, 2, 1, 1),
    Sketcher.Constraint("Coincident", 1, 2, 2, 1),
    Sketcher.Constraint("Coincident", 2, 2, 3, 2),
    Sketcher.Constraint("Coincident", 3, 1, 0, 1),
    Sketcher.Constraint("Coincident", 4, 2, 5, 1),
    Sketcher.Constraint("Coincident", 5, 2, 6, 1),
    Sketcher.Constraint("Coincident", 6, 2, 7, 2),
    Sketcher.Constraint("Coincident", 7, 1, 4, 1),
    Sketcher.Constraint("Coincident", 8, 2, 9, 1),
    Sketcher.Constraint("Coincident", 9, 2, 10, 1),
    Sketcher.Constraint("Coincident", 10, 2, 11, 2),
    Sketcher.Constraint("Coincident", 11, 1, 8, 1),
    Sketcher.Constraint("Coincident", 12, 2, 13, 1),
    Sketcher.Constraint("Coincident", 13, 2, 14, 1),
    Sketcher.Constraint("Coincident", 14, 2, 15, 2),
    Sketcher.Constraint("Coincident", 15, 1, 12, 1),
    Sketcher.Constraint("Coincident", 16, 2, 17, 1),
    Sketcher.Constraint("Coincident", 17, 2, 18, 1),
    Sketcher.Constraint("Coincident", 18, 2, 19, 2),
    Sketcher.Constraint("Coincident", 19, 1, 16, 1),
    Sketcher.Constraint("Coincident", 20, 2, 21, 1),
    Sketcher.Constraint("Coincident", 21, 2, 22, 1),
    Sketcher.Constraint("Coincident", 22, 2, 23, 2),
    Sketcher.Constraint("Coincident", 23, 1, 20, 1),
    Sketcher.Constraint("Coincident", 24, 2, 25, 1),
    Sketcher.Constraint("Coincident", 25, 2, 26, 1),
    Sketcher.Constraint("Coincident", 26, 2, 27, 2),
    Sketcher.Constraint("Coincident", 27, 1, 24, 1),
    Sketcher.Constraint("Coincident", 28, 2, 29, 1),
    Sketcher.Constraint("Coincident", 29, 2, 30, 1),
    Sketcher.Constraint("Coincident", 30, 2, 31, 2),
    Sketcher.Constraint("Coincident", 31, 1, 28, 1),
    Sketcher.Constraint("Coincident", 32, 2, 33, 1),
    Sketcher.Constraint("Coincident", 33, 2, 34, 1),
    Sketcher.Constraint("Coincident", 34, 2, 35, 2),
    Sketcher.Constraint("Coincident", 35, 1, 32, 1),
    Sketcher.Constraint("Coincident", 36, 2, 37, 1),
    Sketcher.Constraint("Coincident", 37, 2, 38, 1),
    Sketcher.Constraint("Coincident", 38, 2, 39, 2),
    Sketcher.Constraint("Coincident", 39, 1, 36, 1),
    Sketcher.Constraint("Coincident", 40, 2, 41, 1),
    Sketcher.Constraint("Coincident", 41, 2, 42, 1),
    Sketcher.Constraint("Coincident", 42, 2, 43, 2),
    Sketcher.Constraint("Coincident", 43, 1, 40, 1),
    Sketcher.Constraint("Coincident", 44, 2, 45, 1),
    Sketcher.Constraint("Coincident", 45, 2, 46, 1),
    Sketcher.Constraint("Coincident", 46, 2, 47, 2),
    Sketcher.Constraint("Coincident", 47, 1, 44, 1),
    Sketcher.Constraint("Coincident", 48, 2, 49, 1),
    Sketcher.Constraint("Coincident", 49, 2, 50, 1),
    Sketcher.Constraint("Coincident", 50, 2, 51, 2),
    Sketcher.Constraint("Coincident", 51, 1, 48, 1),
    Sketcher.Constraint("Coincident", 52, 2, 53, 1),
    Sketcher.Constraint("Coincident", 53, 2, 54, 1),
    Sketcher.Constraint("Coincident", 54, 2, 55, 2),
    Sketcher.Constraint("Coincident", 55, 1, 52, 1),
    Sketcher.Constraint("Vertical", 0),
    Sketcher.Constraint("Coincident", 1, 3, -1, 1),
    Sketcher.Constraint("Coincident", 3, 3, -1, 1),
    Sketcher.Constraint("Coincident", 5, 3, -1, 1),
    Sketcher.Constraint("Coincident", 7, 3, -1, 1),
    Sketcher.Constraint("Coincident", 9, 3, -1, 1),
    Sketcher.Constraint("Coincident", 11, 3, -1, 1),
    Sketcher.Constraint("Coincident", 13, 3, -1, 1),
    Sketcher.Constraint("Coincident", 15, 3, -1, 1),
    Sketcher.Constraint("Coincident", 17, 3, -1, 1),
    Sketcher.Constraint("Coincident", 19, 3, -1, 1),
    Sketcher.Constraint("Coincident", 21, 3, -1, 1),
    Sketcher.Constraint("Coincident", 23, 3, -1, 1),
    Sketcher.Constraint("Coincident", 25, 3, -1, 1),
    Sketcher.Constraint("Coincident", 27, 3, -1, 1),
    Sketcher.Constraint("Coincident", 29, 3, -1, 1),
    Sketcher.Constraint("Coincident", 31, 3, -1, 1),
    Sketcher.Constraint("Coincident", 33, 3, -1, 1),
    Sketcher.Constraint("Coincident", 35, 3, -1, 1),
    Sketcher.Constraint("Coincident", 37, 3, -1, 1),
    Sketcher.Constraint("Coincident", 39, 3, -1, 1),
    Sketcher.Constraint("Coincident", 41, 3, -1, 1),
    Sketcher.Constraint("Coincident", 43, 3, -1, 1),
    Sketcher.Constraint("Coincident", 45, 3, -1, 1),
    Sketcher.Constraint("Coincident", 47, 3, -1, 1),
    Sketcher.Constraint("Coincident", 49, 3, -1, 1),
    Sketcher.Constraint("Coincident", 51, 3, -1, 1),
    Sketcher.Constraint("Coincident", 53, 3, -1, 1),
    Sketcher.Constraint("Coincident", 55, 3, -1, 1),
    Sketcher.Constraint("Equal", 1, 5),
    Sketcher.Constraint("Equal", 3, 7),
    Sketcher.Constraint("Equal", 5, 9),
    Sketcher.Constraint("Equal", 7, 11),
    Sketcher.Constraint("Equal", 9, 13),
    Sketcher.Constraint("Equal", 11, 15),
    Sketcher.Constraint("Equal", 13, 17),
    Sketcher.Constraint("Equal", 15, 19),
    Sketcher.Constraint("Equal", 17, 21),
    Sketcher.Constraint("Equal", 19, 23),
    Sketcher.Constraint("Equal", 21, 25),
    Sketcher.Constraint("Equal", 23, 27),
    Sketcher.Constraint("Equal", 25, 29),
    Sketcher.Constraint("Equal", 27, 31),
    Sketcher.Constraint("Equal", 29, 33),
    Sketcher.Constraint("Equal", 31, 35),
    Sketcher.Constraint("Equal", 33, 37),
    Sketcher.Constraint("Equal", 35, 39),
    Sketcher.Constraint("Equal", 37, 41),
    Sketcher.Constraint("Equal", 39, 43),
    Sketcher.Constraint("Equal", 41, 45),
    Sketcher.Constraint("Equal", 43, 47),
    Sketcher.Constraint("Equal", 45, 49),
    Sketcher.Constraint("Equal", 47, 51),
    Sketcher.Constraint("Equal", 49, 53),
    Sketcher.Constraint("Equal", 51, 55),
    Sketcher.Constraint("PointOnObject", 0, 2, -2),
    Sketcher.Constraint("Radius", 1, 18.0),
    Sketcher.Constraint("Radius", 3, 12.0),
    Sketcher.Constraint("Angle", 52, Q("80 deg")),
    Sketcher.Constraint("DistanceX", -1, 1, 16, 2, 14.243501),
    Sketcher.Constraint("DistanceY", 23, 1, -1, 1, 4.998299),
    Sketcher.Constraint("DistanceY", -1, 1, 25, 2, 0.338599),
    Sketcher.Constraint("DistanceX", -1, 1, 48, 2, 7.055399),
    Sketcher.Constraint("DistanceX", -1, 1, 51, 1, 4.703599),
    Sketcher.Constraint("DistanceX", -1, 1, 1, 2, 3.931582),
    Sketcher.Constraint("DistanceY", 4, 2, -1, 1, 17.533209),
    Sketcher.Constraint("DistanceX", -1, 1, 5, 2, 7.803951),
    Sketcher.Constraint("DistanceX", -1, 1, 7, 1, 2.715108),
    Sketcher.Constraint("DistanceY", 10, 2, -1, 1, 9.35597),
    Sketcher.Constraint("DistanceY", 12, 2, -1, 1, 13.942889),
    Sketcher.Constraint("DistanceY", 13, 2, -1, 1, 11.119722),
    Sketcher.Constraint("DistanceX", -1, 1, 14, 2, 9.436379),
    Sketcher.Constraint("DistanceY", 15, 1, -1, 1, 9.29526),
    Sketcher.Constraint("DistanceX", -1, 1, 18, 2, 10.868958),
    Sketcher.Constraint("DistanceY", 19, 1, -1, 1, 7.33705),
    Sketcher.Constraint("DistanceY", 20, 2, -1, 1, 7.497449),
    Sketcher.Constraint("DistanceX", -1, 1, 22, 2, 11.737812),
    Sketcher.Constraint("DistanceX", -1, 1, 24, 2, 17.636232),
    Sketcher.Constraint("DistanceY", 27, 1, -1, 1, 2.400308),
    Sketcher.Constraint("DistanceX", -1, 1, 28, 2, 17.993511),
    Sketcher.Constraint("DistanceY", -1, 1, 29, 2, 4.40176),
    Sketcher.Constraint("DistanceX", -1, 1, 33, 2, 16.004939),
    Sketcher.Constraint("DistanceX", -1, 1, 34, 2, 10.66996),
    Sketcher.Constraint("DistanceY", -1, 1, 35, 1, 3.02795),
    Sketcher.Constraint("DistanceX", -1, 1, 36, 2, 15.938208),
    Sketcher.Constraint("DistanceX", -1, 1, 38, 2, 9.150851),
    Sketcher.Constraint("DistanceY", -1, 1, 39, 1, 5.576678),
    Sketcher.Constraint("DistanceY", -1, 1, 40, 2, 11.754252),
    Sketcher.Constraint("DistanceX", -1, 1, 41, 2, 10.735692),
    Sketcher.Constraint("DistanceX", -1, 1, 43, 1, 9.08815),
    Sketcher.Constraint("DistanceY", -1, 1, 47, 1, 9.68923),
    Sketcher.Constraint("DistanceX", -1, 1, 49, 2, 3.268069),
    Sketcher.Constraint("DistanceY", -1, 1, 50, 2, 11.80056),
    Sketcher.Constraint("DistanceY", -1, 1, 52, 2, 17.72654),
    Sketcher.Constraint("DistanceX", 54, 2, -1, 1, 0.54777),
    Sketcher.Constraint("DistanceX", -1, 1, 2, 2, 2.621055),
    Sketcher.Constraint("DistanceX", -1, 1, 6, 2, 5.202634),
    Sketcher.Constraint("DistanceX", -1, 1, 8, 2, 7.934093),
    Sketcher.Constraint("DistanceX", -1, 1, 9, 2, 11.271563),
    Sketcher.Constraint("DistanceX", -1, 1, 11, 1, 5.289395),
    Sketcher.Constraint("DistanceX", -1, 1, 17, 2, 16.303437),
    Sketcher.Constraint("DistanceX", -1, 1, 21, 2, 17.606718),
    Sketcher.Constraint("DistanceX", -1, 1, 26, 2, 11.997877),
    Sketcher.Constraint("DistanceX", -1, 1, 30, 2, 11.635664),
    Sketcher.Constraint("DistanceX", -1, 1, 31, 1, 11.995674),
    Sketcher.Constraint("DistanceX", -1, 1, 32, 2, 17.417546),
    Sketcher.Constraint("DistanceX", -1, 1, 37, 2, 13.726277),
    Sketcher.Constraint("DistanceX", -1, 1, 42, 2, 7.157128),
    Sketcher.Constraint("DistanceX", -1, 1, 44, 2, 10.619198),
    Sketcher.Constraint("DistanceX", -1, 1, 45, 2, 7.188293),
    Sketcher.Constraint("DistanceX", -1, 1, 46, 2, 4.792195),
    Sketcher.Constraint("DistanceX", 53, 2, -1, 1, 0.821656),
])
pocket2 = body.newObject("PartDesign::Pocket", "Pocket001")
pocket2.Profile = sketch3
pocket2.Length = 16
pocket2.Reversed = True

doc.recompute()
